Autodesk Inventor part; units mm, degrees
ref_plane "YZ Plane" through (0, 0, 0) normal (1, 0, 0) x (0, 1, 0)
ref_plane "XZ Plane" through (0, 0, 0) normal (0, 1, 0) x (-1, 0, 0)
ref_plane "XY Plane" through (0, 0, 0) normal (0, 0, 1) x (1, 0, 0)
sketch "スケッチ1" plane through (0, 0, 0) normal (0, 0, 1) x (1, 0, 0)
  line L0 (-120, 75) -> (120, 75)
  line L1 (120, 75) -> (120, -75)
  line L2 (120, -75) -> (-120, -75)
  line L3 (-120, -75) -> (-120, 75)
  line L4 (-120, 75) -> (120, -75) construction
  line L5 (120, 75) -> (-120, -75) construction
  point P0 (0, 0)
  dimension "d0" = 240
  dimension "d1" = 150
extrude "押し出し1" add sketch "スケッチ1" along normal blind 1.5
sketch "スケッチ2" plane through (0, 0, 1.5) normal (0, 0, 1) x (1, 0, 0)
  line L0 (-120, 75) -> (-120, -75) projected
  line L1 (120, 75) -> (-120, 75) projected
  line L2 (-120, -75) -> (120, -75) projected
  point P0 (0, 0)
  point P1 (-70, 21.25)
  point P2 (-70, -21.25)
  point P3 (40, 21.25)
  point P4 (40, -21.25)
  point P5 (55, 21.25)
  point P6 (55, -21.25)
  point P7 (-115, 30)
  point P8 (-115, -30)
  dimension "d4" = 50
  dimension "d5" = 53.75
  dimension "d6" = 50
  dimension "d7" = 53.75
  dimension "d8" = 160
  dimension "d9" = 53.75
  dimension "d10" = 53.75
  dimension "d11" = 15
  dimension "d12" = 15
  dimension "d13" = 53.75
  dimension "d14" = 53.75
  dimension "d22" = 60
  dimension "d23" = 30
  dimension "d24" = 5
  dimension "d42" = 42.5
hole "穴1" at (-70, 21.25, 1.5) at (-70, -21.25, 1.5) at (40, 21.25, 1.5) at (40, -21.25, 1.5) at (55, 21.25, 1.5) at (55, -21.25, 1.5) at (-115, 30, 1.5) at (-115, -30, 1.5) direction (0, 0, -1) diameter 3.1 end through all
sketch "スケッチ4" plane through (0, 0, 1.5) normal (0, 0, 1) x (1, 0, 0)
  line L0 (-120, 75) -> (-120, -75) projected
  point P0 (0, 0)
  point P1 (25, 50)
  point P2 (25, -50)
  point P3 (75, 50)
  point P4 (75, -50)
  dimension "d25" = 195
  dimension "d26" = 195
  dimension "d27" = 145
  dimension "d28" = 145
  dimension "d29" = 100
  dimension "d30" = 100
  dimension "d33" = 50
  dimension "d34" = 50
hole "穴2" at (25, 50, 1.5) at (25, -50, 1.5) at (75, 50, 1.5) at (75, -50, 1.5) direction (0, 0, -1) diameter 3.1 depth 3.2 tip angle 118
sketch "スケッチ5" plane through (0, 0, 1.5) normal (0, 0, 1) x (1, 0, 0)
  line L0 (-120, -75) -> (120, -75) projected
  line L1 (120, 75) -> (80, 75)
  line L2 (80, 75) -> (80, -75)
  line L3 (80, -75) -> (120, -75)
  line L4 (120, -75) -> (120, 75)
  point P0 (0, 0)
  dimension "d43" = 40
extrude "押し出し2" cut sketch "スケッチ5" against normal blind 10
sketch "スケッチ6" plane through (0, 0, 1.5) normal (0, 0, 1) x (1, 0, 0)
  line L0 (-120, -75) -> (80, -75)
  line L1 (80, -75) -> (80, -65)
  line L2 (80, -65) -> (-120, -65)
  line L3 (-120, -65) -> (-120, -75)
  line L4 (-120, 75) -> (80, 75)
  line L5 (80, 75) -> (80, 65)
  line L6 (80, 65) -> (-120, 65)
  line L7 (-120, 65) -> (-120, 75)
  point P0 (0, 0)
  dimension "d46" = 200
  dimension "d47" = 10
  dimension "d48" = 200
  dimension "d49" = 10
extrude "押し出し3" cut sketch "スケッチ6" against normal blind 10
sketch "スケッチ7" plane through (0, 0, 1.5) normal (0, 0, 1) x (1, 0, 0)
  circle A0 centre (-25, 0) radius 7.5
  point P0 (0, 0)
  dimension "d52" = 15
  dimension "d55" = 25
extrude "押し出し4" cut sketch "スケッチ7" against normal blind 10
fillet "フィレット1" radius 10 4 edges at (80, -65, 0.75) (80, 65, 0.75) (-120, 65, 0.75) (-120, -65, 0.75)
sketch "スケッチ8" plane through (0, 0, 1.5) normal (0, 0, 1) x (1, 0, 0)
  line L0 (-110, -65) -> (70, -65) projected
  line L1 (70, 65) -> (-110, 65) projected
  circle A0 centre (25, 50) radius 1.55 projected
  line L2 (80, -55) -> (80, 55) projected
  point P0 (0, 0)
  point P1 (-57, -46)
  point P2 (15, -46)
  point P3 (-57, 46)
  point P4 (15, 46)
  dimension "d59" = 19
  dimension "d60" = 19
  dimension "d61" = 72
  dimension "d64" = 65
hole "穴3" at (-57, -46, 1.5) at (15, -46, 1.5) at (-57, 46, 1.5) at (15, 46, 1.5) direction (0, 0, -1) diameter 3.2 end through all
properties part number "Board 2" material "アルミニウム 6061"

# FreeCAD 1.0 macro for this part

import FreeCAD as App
import Part
import Sketcher
from FreeCAD import Vector
Q = App.Units.Quantity


def edges_at(feature, points):
    """Names of the edges that pass closest to the given points."""
    edges = feature.Shape.Edges
    near = lambda p: min(range(len(edges)), key=lambda i: edges[i].distToShape(Part.Vertex(*p))[0])
    return sorted({f"Edge{near(p) + 1}" for p in points})

doc = App.newDocument("Part")
body = doc.addObject("PartDesign::Body", "Body")

sketch1 = body.newObject("Sketcher::SketchObject", "Sketch")
sketch1.AttachmentSupport = (doc.getObject("XY_Plane"), [""])
sketch1.MapMode = "FlatFace"
sketch1.addGeometry(Part.LineSegment(Vector(120, 75, 0), Vector(-120, 75, 0)), False)
sketch1.addGeometry(Part.LineSegment(Vector(-120, 75, 0), Vector(-120, -75, 0)), False)
sketch1.addGeometry(Part.LineSegment(Vector(-120, -75, 0), Vector(120, -75, 0)), False)
sketch1.addGeometry(Part.LineSegment(Vector(120, -75, 0), Vector(120, 75, 0)), False)
sketch1.addConstraint(Sketcher.Constraint("Coincident", 0, 2, 1, 1))
sketch1.addConstraint(Sketcher.Constraint("Coincident", 1, 2, 2, 1))
sketch1.addConstraint(Sketcher.Constraint("Coincident", 2, 2, 3, 1))
sketch1.addConstraint(Sketcher.Constraint("Coincident", 3, 2, 0, 1))
sketch1.addConstraint(Sketcher.Constraint("Horizontal", 0))
sketch1.addConstraint(Sketcher.Constraint("Vertical", 1))
sketch1.addConstraint(Sketcher.Constraint("Horizontal", 2))
sketch1.addConstraint(Sketcher.Constraint("Vertical", 3))
sketch1.addConstraint(Sketcher.Constraint("Symmetric", 0, 2, 2, 2, -1, 1))
sketch1.addConstraint(Sketcher.Constraint("DistanceX", 0, 2, 0, 1, Q("240 mm")))
sketch1.addConstraint(Sketcher.Constraint("DistanceY", 1, 2, 1, 1, Q("150 mm")))
pad1 = body.newObject("PartDesign::Pad", "Pad")
pad1.Profile = sketch1
pad1.Length = 1.5

sketch2 = body.newObject("Sketcher::SketchObject", "Sketch001")
sketch2.AttachmentSupport = (doc.getObject("XY_Plane"), [""])
sketch2.MapMode = "FlatFace"
sketch2.AttachmentOffset = App.Placement(Vector(0, 0, 1.5), App.Rotation())
sketch2.addGeometry(Part.Circle(Vector(-70, 21.25, 0), Vector(0, 0, 1), 1.55), False)
sketch2.addGeometry(Part.Circle(Vector(-70, -21.25, 0), Vector(0, 0, 1), 1.55), False)
sketch2.addGeometry(Part.Circle(Vector(40, 21.25, 0), Vector(0, 0, 1), 1.55), False)
sketch2.addGeometry(Part.Circle(Vector(40, -21.25, 0), Vector(0, 0, 1), 1.55), False)
sketch2.addGeometry(Part.Circle(Vector(55, 21.25, 0), Vector(0, 0, 1), 1.55), False)
sketch2.addGeometry(Part.Circle(Vector(55, -21.25, 0), Vector(0, 0, 1), 1.55), False)
sketch2.addGeometry(Part.Circle(Vector(-115, 30, 0), Vector(0, 0, 1), 1.55), False)
sketch2.addGeometry(Part.Circle(Vector(-115, -30, 0), Vector(0, 0, 1), 1.55), False)
sketch2.addConstraint(Sketcher.Constraint("Equal", 0, 1))
sketch2.addConstraint(Sketcher.Constraint("Equal", 1, 2))
sketch2.addConstraint(Sketcher.Constraint("Equal", 2, 3))
sketch2.addConstraint(Sketcher.Constraint("Equal", 3, 4))
sketch2.addConstraint(Sketcher.Constraint("Equal", 4, 5))
sketch2.addConstraint(Sketcher.Constraint("Equal", 5, 6))
sketch2.addConstraint(Sketcher.Constraint("Equal", 6, 7))
sketch2.addConstraint(Sketcher.Constraint("Symmetric", 0, 3, 1, 3, -1))
sketch2.addConstraint(Sketcher.Constraint("Symmetric", 2, 3, 3, 3, -1))
sketch2.addConstraint(Sketcher.Constraint("Symmetric", 4, 3, 5, 3, -1))
sketch2.addConstraint(Sketcher.Constraint("Symmetric", 6, 3, 7, 3, -1))
sketch2.addConstraint(Sketcher.Constraint("Horizontal", 0, 3, 2, 3))
sketch2.addConstraint(Sketcher.Constraint("Horizontal", 2, 3, 4, 3))
sketch2.addConstraint(Sketcher.Constraint("Diameter", 0, Q("3.1 mm")))
sketch2.addConstraint(Sketcher.Constraint("DistanceX", 0, 3, -1, 1, Q("70 mm")))
sketch2.addConstraint(Sketcher.Constraint("DistanceX", -1, 1, 2, 3, Q("40 mm")))
sketch2.addConstraint(Sketcher.Constraint("DistanceX", -1, 1, 4, 3, Q("55 mm")))
sketch2.addConstraint(Sketcher.Constraint("DistanceX", 6, 3, -1, 1, Q("115 mm")))
sketch2.addConstraint(Sketcher.Constraint("DistanceY", -1, 1, 6, 3, Q("30 mm")))
sketch2.addConstraint(Sketcher.Constraint("DistanceY", 1, 3, 0, 3, Q("42.5 mm")))
doc.recompute()
hole = body.newObject("PartDesign::Hole", "Hole")
hole.Profile = sketch2
hole.ThreadType = "None"
hole.Diameter = 3.1
hole.DepthType = "ThroughAll"

sketch3 = body.newObject("Sketcher::SketchObject", "Sketch002")
sketch3.AttachmentSupport = (doc.getObject("XY_Plane"), [""])
sketch3.MapMode = "FlatFace"
sketch3.AttachmentOffset = App.Placement(Vector(0, 0, 1.5), App.Rotation())
sketch3.addGeometry(Part.Circle(Vector(25, 50, 0), Vector(0, 0, 1), 1.55), False)
sketch3.addGeometry(Part.Circle(Vector(25, -50, 0), Vector(0, 0, 1), 1.55), False)
sketch3.addGeometry(Part.Circle(Vector(75, 50, 0), Vector(0, 0, 1), 1.55), False)
sketch3.addGeometry(Part.Circle(Vector(75, -50, 0), Vector(0, 0, 1), 1.55), False)
sketch3.addConstraint(Sketcher.Constraint("Equal", 0, 1))
sketch3.addConstraint(Sketcher.Constraint("Equal", 1, 2))
sketch3.addConstraint(Sketcher.Constraint("Equal", 2, 3))
sketch3.addConstraint(Sketcher.Constraint("Symmetric", 0, 3, 1, 3, -1))
sketch3.addConstraint(Sketcher.Constraint("Symmetric", 2, 3, 3, 3, -1))
sketch3.addConstraint(Sketcher.Constraint("Horizontal", 0, 3, 2, 3))
sketch3.addConstraint(Sketcher.Constraint("Diameter", 0, Q("3.1 mm")))
sketch3.addConstraint(Sketcher.Constraint("DistanceX", -1, 1, 0, 3, Q("25 mm")))
sketch3.addConstraint(Sketcher.Constraint("DistanceY", -1, 1, 0, 3, Q("50 mm")))
sketch3.addConstraint(Sketcher.Constraint("DistanceX", -1, 1, 2, 3, Q("75 mm")))
doc.recompute()
hole2 = body.newObject("PartDesign::Hole", "Hole001")
hole2.Profile = sketch3
hole2.ThreadType = "None"
hole2.Diameter = 3.1
hole2.DepthType = "Dimension"
hole2.Depth = 3.2
hole2.DrillPoint = "Angled"
hole2.DrillPointAngle = 118

sketch4 = body.newObject("Sketcher::SketchObject", "Sketch003")
sketch4.AttachmentSupport = (doc.getObject("XY_Plane"), [""])
sketch4.MapMode = "FlatFace"
sketch4.AttachmentOffset = App.Placement(Vector(0, 0, 1.5), App.Rotation())
sketch4.addGeometry(Part.LineSegment(Vector(80, 75, 0), Vector(80, -75, 0)), False)
sketch4.addGeometry(Part.LineSegment(Vector(80, -75, 0), Vector(120, -75, 0)), False)
sketch4.addGeometry(Part.LineSegment(Vector(120, -75, 0), Vector(120, 75, 0)), False)
sketch4.addGeometry(Part.LineSegment(Vector(120, 75, 0), Vector(80, 75, 0)), False)
sketch4.addConstraint(Sketcher.Constraint("Coincident", 0, 2, 1, 1))
sketch4.addConstraint(Sketcher.Constraint("Coincident", 1, 2, 2, 1))
sketch4.addConstraint(Sketcher.Constraint("Coincident", 2, 2, 3, 1))
sketch4.addConstraint(Sketcher.Constraint("Coincident", 3, 2, 0, 1))
sketch4.addConstraint(Sketcher.Constraint("Vertical", 0))
sketch4.addConstraint(Sketcher.Constraint("Horizontal", 1))
sketch4.addConstraint(Sketcher.Constraint("Vertical", 2))
sketch4.addConstraint(Sketcher.Constraint("Horizontal", 3))
sketch4.addConstraint(Sketcher.Constraint("DistanceX", 1, 1, 1, 2, Q("40 mm")))
sketch4.addConstraint(Sketcher.Constraint("DistanceY", 0, 2, 0, 1, Q("150 mm")))
sketch4.addConstraint(Sketcher.Constraint("DistanceX", -1, 1, 0, 2, Q("80 mm")))
sketch4.addConstraint(Sketcher.Constraint("DistanceY", 0, 2, -1, 1, Q("75 mm")))
pocket1 = body.newObject("PartDesign::Pocket", "Pocket")
pocket1.Profile = sketch4
pocket1.Length = 10

sketch5 = body.newObject("Sketcher::SketchObject", "Sketch004")
sketch5.AttachmentSupport = (doc.getObject("XY_Plane"), [""])
sketch5.MapMode = "FlatFace"
sketch5.AttachmentOffset = App.Placement(Vector(0, 0, 1.5), App.Rotation())
sketch5.addGeometry(Part.LineSegment(Vector(-120, -65, 0), Vector(-120, -75, 0)), False)
sketch5.addGeometry(Part.LineSegment(Vector(-120, -75, 0), Vector(80, -75, 0)), False)
sketch5.addGeometry(Part.LineSegment(Vector(80, -75, 0), Vector(80, -65, 0)), False)
sketch5.addGeometry(Part.LineSegment(Vector(80, -65, 0), Vector(-120, -65, 0)), False)
sketch5.addGeometry(Part.LineSegment(Vector(80, 75, 0), Vector(-120, 75, 0)), False)
sketch5.addGeometry(Part.LineSegment(Vector(-120, 75, 0), Vector(-120, 65, 0)), False)
sketch5.addGeometry(Part.LineSegment(Vector(-120, 65, 0), Vector(80, 65, 0)), False)
sketch5.addGeometry(Part.LineSegment(Vector(80, 65, 0), Vector(80, 75, 0)), False)
sketch5.addConstraint(Sketcher.Constraint("Coincident", 0, 2, 1, 1))
sketch5.addConstraint(Sketcher.Constraint("Coincident", 1, 2, 2, 1))
sketch5.addConstraint(Sketcher.Constraint("Coincident", 2, 2, 3, 1))
sketch5.addConstraint(Sketcher.Constraint("Coincident", 3, 2, 0, 1))
sketch5.addConstraint(Sketcher.Constraint("Coincident", 4, 2, 5, 1))
sketch5.addConstraint(Sketcher.Constraint("Coincident", 5, 2, 6, 1))
sketch5.addConstraint(Sketcher.Constraint("Coincident", 6, 2, 7, 1))
sketch5.addConstraint(Sketcher.Constraint("Coincident", 7, 2, 4, 1))
sketch5.addConstraint(Sketcher.Constraint("Vertical", 0))
sketch5.addConstraint(Sketcher.Constraint("Horizontal", 1))
sketch5.addConstraint(Sketcher.Constraint("Vertical", 2))
sketch5.addConstraint(Sketcher.Constraint("Horizontal", 3))
sketch5.addConstraint(Sketcher.Constraint("Horizontal", 4))
sketch5.addConstraint(Sketcher.Constraint("Vertical", 5))
sketch5.addConstraint(Sketcher.Constraint("Horizontal", 6))
sketch5.addConstraint(Sketcher.Constraint("Vertical", 7))
sketch5.addConstraint(Sketcher.Constraint("Symmetric", 0, 2, 4, 2, -1))
sketch5.addConstraint(Sketcher.Constraint("Symmetric", 2, 2, 6, 2, -1))
sketch5.addConstraint(Sketcher.Constraint("DistanceX", 1, 1, 1, 2, Q("200 mm")))
sketch5.addConstraint(Sketcher.Constraint("DistanceY", 0, 2, 0, 1, Q("10 mm")))
sketch5.addConstraint(Sketcher.Constraint("DistanceX", 0, 2, -1, 1, Q("120 mm")))
sketch5.addConstraint(Sketcher.Constraint("DistanceY", 0, 2, -1, 1, Q("75 mm")))
pocket2 = body.newObject("PartDesign::Pocket", "Pocket001")
pocket2.Profile = sketch5
pocket2.Length = 10

sketch6 = body.newObject("Sketcher::SketchObject", "Sketch005")
sketch6.AttachmentSupport = (doc.getObject("XY_Plane"), [""])
sketch6.MapMode = "FlatFace"
sketch6.AttachmentOffset = App.Placement(Vector(0, 0, 1.5), App.Rotation())
sketch6.addGeometry(Part.Circle(Vector(-25, 0, 0), Vector(0, 0, 1), 7.5), False)
sketch6.addConstraint(Sketcher.Constraint("PointOnObject", 0, 3, -1))
sketch6.addConstraint(Sketcher.Constraint("Diameter", 0, Q("15 mm")))
sketch6.addConstraint(Sketcher.Constraint("DistanceX", 0, 3, -1, 1, Q("25 mm")))
pocket3 = body.newObject("PartDesign::Pocket", "Pocket002")
pocket3.Profile = sketch6
pocket3.Length = 10
doc.recompute()

fillet = body.newObject("PartDesign::Fillet", "Fillet")
fillet.Base = (pocket3, edges_at(pocket3, [
    (80, -65, 0.75),
    (80, 65, 0.75),
    (-120, 65, 0.75),
    (-120, -65, 0.75),
]))
fillet.Radius = 10

sketch7 = body.newObject("Sketcher::SketchObject", "Sketch006")
sketch7.AttachmentSupport = (doc.getObject("XY_Plane"), [""])
sketch7.MapMode = "FlatFace"
sketch7.AttachmentOffset = App.Placement(Vector(0, 0, 1.5), App.Rotation())
sketch7.addGeometry(Part.Circle(Vector(-57, -46, 0), Vector(0, 0, 1), 1.6), False)
sketch7.addGeometry(Part.Circle(Vector(15, -46, 0), Vector(0, 0, 1), 1.6), False)
sketch7.addGeometry(Part.Circle(Vector(-57, 46, 0), Vector(0, 0, 1), 1.6), False)
sketch7.addGeometry(Part.Circle(Vector(15, 46, 0), Vector(0, 0, 1), 1.6), False)
sketch7.addConstraint(Sketcher.Constraint("Equal", 0, 1))
sketch7.addConstraint(Sketcher.Constraint("Equal", 1, 2))
sketch7.addConstraint(Sketcher.Constraint("Equal", 2, 3))
sketch7.addConstraint(Sketcher.Constraint("Symmetric", 0, 3, 2, 3, -1))
sketch7.addConstraint(Sketcher.Constraint("Symmetric", 1, 3, 3, 3, -1))
sketch7.addConstraint(Sketcher.Constraint("Horizontal", 0, 3, 1, 3))
sketch7.addConstraint(Sketcher.Constraint("Diameter", 0, Q("3.2 mm")))
sketch7.addConstraint(Sketcher.Constraint("DistanceX", 0, 3, -1, 1, Q("57 mm")))
sketch7.addConstraint(Sketcher.Constraint("DistanceY", 0, 3, -1, 1, Q("46 mm")))
sketch7.addConstraint(Sketcher.Constraint("DistanceX", -1, 1, 1, 3, Q("15 mm")))
doc.recompute()
hole3 = body.newObject("PartDesign::Hole", "Hole002")
hole3.Profile = sketch7
hole3.ThreadType = "None"
hole3.Diameter = 3.2
hole3.DepthType = "ThroughAll"

doc.recompute()
